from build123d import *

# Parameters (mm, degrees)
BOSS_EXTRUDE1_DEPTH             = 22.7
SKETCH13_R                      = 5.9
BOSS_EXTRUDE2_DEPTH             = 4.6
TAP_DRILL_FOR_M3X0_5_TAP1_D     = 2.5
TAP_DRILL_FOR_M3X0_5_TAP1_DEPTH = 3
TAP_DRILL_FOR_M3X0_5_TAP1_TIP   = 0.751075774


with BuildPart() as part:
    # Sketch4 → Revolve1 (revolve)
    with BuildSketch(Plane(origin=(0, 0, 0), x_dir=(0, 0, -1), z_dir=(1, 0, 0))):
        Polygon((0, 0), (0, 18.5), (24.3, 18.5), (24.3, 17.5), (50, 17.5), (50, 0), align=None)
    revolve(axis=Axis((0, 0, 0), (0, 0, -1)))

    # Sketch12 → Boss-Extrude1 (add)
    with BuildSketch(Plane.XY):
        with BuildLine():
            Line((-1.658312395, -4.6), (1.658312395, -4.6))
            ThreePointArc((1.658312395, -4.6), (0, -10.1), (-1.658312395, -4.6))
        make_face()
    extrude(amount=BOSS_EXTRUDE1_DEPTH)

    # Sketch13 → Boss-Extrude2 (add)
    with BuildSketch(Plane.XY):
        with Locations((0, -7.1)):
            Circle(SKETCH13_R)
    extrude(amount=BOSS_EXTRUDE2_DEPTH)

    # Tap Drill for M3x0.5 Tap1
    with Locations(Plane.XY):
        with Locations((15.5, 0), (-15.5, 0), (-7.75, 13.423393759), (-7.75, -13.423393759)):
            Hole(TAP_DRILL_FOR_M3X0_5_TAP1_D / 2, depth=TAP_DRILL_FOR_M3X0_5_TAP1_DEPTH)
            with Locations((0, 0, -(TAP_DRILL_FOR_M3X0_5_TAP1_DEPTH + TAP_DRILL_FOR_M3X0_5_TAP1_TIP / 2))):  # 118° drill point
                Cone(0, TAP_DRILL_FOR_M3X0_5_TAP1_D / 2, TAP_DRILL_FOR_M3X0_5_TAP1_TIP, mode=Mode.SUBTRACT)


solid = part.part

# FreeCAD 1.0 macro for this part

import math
import FreeCAD as App
import Part
import Sketcher

V = App.Vector
Q = App.Units.Quantity


def add_polygon(sketch, points):
    """Adds a closed chain of lines whose ends are joined by coincident constraints."""
    first, n = sketch.GeometryCount, len(points)
    for a, b in zip(points, points[1:] + points[:1]):
        sketch.addGeometry(Part.LineSegment(App.Vector(*a, 0), App.Vector(*b, 0)), False)
    for i in range(n):
        sketch.addConstraint(Sketcher.Constraint("Coincident", first + i, 2, first + (i + 1) % n, 1))

doc = App.newDocument("Part")
body = doc.addObject("PartDesign::Body", "Body")

sketch1 = body.newObject("Sketcher::SketchObject", "Sketch")
sketch1.AttachmentSupport = (doc.getObject("YZ_Plane"), [""])
sketch1.MapMode = "FlatFace"
add_polygon(sketch1, [(18.5, 0), (0, 0), (0, -50), (17.5, -50), (17.5, -24.3), (18.5, -24.3)])
sketch1.addConstraint([
    Sketcher.Constraint("Horizontal", 0),
    Sketcher.Constraint("Vertical", 1),
    Sketcher.Constraint("Horizontal", 2),
    Sketcher.Constraint("Vertical", 3),
    Sketcher.Constraint("Horizontal", 4),
    Sketcher.Constraint("Vertical", 5),
    Sketcher.Constraint("Coincident", 0, 2, -1, 1),
    Sketcher.Constraint("DistanceX", 4, 1, 4, 2, Q("1 mm")),
    Sketcher.Constraint("DistanceY", 1, 2, 1, 1, Q("50 mm")),
    Sketcher.Constraint("DistanceX", 0, 2, 0, 1, Q("18.5 mm")),
    Sketcher.Constraint("DistanceY", 3, 1, 3, 2, Q("25.7 mm")),
])
revolution = body.newObject("PartDesign::Revolution", "Revolution")
revolution.Profile = sketch1
revolution.ReferenceAxis = (sketch1, ["V_Axis"])
revolution.Angle = 360

sketch2 = body.newObject("Sketcher::SketchObject", "Sketch001")
sketch2.AttachmentSupport = (doc.getObject("XY_Plane"), [""])
sketch2.MapMode = "FlatFace"
sketch2.addGeometry([
    Part.LineSegment(V(1.7, -4.6, 0), V(-1.7, -4.6, 0)),
    Part.ArcOfCircle(Part.Circle(V(0, -7.1, 0), V(0, 0, 1), 3), math.radians(124), math.radians(416)),
], False)
sketch2.addConstraint([
    Sketcher.Constraint("Coincident", 0, 1, 1, 2),
    Sketcher.Constraint("Coincident", 1, 1, 0, 2),
    Sketcher.Constraint("Horizontal", 0),
    Sketcher.Constraint("PointOnObject", 1, 3, -2),
    Sketcher.Constraint("Radius", 1, Q("3 mm")),
    Sketcher.Constraint("DistanceY", 1, 3, -1, 1, Q("7.1 mm")),
    Sketcher.Constraint("DistanceY", 0, 1, -1, 1, Q("4.6 mm")),
])
pad1 = body.newObject("PartDesign::Pad", "Pad")
pad1.Profile = sketch2
pad1.Length = 22.7

sketch3 = body.newObject("Sketcher::SketchObject", "Sketch002")
sketch3.AttachmentSupport = (doc.getObject("XY_Plane"), [""])
sketch3.MapMode = "FlatFace"
sketch3.addGeometry(Part.Circle(V(0, -7, 0), V(0, 0, 1), 6), False)
sketch3.addConstraint([
    Sketcher.Constraint("PointOnObject", 0, 3, -2),
    Sketcher.Constraint("Diameter", 0, Q("11.8 mm")),
    Sketcher.Constraint("DistanceY", 0, 3, -1, 1, Q("7.1 mm")),
])
pad2 = body.newObject("PartDesign::Pad", "Pad001")
pad2.Profile = sketch3
pad2.Length = 4.6

sketch4 = body.newObject("Sketcher::SketchObject", "Sketch003")
sketch4.AttachmentSupport = (doc.getObject("XY_Plane"), [""])
sketch4.MapMode = "FlatFace"
sketch4.addGeometry([
    Part.Circle(V(15.5, 0, 0), V(0, 0, 1), 1.2),
    Part.Circle(V(-15.5, 0, 0), V(0, 0, 1), 1.2),
    Part.Circle(V(-7.8, 13.4, 0), V(0, 0, 1), 1.2),
    Part.Circle(V(-7.8, -13.4, 0), V(0, 0, 1), 1.2),
], False)
sketch4.addConstraint([
    Sketcher.Constraint("Equal", 0, 1),
    Sketcher.Constraint("Equal", 1, 2),
    Sketcher.Constraint("Equal", 2, 3),
    Sketcher.Constraint("Symmetric", 0, 3, 1, 3, -1, 1),
    Sketcher.Constraint("Symmetric", 2, 3, 3, 3, -1),
    Sketcher.Constraint("PointOnObject", 0, 3, -1),
    Sketcher.Constraint("Diameter", 0, Q("2.5 mm")),
    Sketcher.Constraint("DistanceX", 1, 3, 0, 3, Q("31 mm")),
    Sketcher.Constraint("DistanceX", 2, 3, -1, 1, Q("7.75 mm")),
    Sketcher.Constraint("DistanceY", -1, 1, 2, 3, Q("13.423394 mm")),
])
doc.recompute()
hole = body.newObject("PartDesign::Hole", "Hole")
hole.Profile = sketch4
hole.ThreadType = "None"
hole.Diameter = 2.5
hole.DepthType = "Dimension"
hole.Depth = 3
hole.DrillPoint = "Angled"
hole.DrillPointAngle = 118

doc.recompute()
